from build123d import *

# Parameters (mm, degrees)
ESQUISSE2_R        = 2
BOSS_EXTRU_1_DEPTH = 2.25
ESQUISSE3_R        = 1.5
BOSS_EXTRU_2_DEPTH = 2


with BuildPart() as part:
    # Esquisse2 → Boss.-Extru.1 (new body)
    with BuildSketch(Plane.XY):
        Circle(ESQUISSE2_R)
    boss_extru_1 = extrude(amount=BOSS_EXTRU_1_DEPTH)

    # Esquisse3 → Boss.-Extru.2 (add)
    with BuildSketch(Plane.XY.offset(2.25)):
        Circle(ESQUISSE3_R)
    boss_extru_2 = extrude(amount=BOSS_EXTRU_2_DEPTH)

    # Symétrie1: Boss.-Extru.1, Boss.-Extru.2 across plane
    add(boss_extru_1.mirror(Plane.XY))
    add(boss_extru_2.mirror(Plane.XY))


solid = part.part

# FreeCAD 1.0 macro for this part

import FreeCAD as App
import Part
import Sketcher
Q = App.Units.Quantity

doc = App.newDocument("Part")
params = doc.addObject("Spreadsheet::Sheet", "Params")
for row, (alias, value) in enumerate([
    ("sketch1_diameter", "4 mm"),
    ("pad1_length", "2.25 mm"),
    ("sketch2_diameter", "3 mm"),
    ("pad2_length", "2 mm"),
], start=1):
    params.set(f"A{row}", alias)
    params.set(f"B{row}", "=" + value)
    params.setAlias(f"B{row}", alias)

body = doc.addObject("PartDesign::Body", "Body")

# Sketch on XY plane
sketch1 = doc.addObject("Sketcher::SketchObject", "Sketch")
body.addObject(sketch1)
sketch1.AttachmentSupport = (doc.XY_Plane, [""])
sketch1.MapMode = "FlatFace"
sketch1.addGeometry(Part.Circle(App.Vector(0, 0, 0), App.Vector(0, 0, 1), 2), False)
sketch1.addConstraint(Sketcher.Constraint("Coincident", 0, 3, -1, 1))
sketch1.addConstraint(Sketcher.Constraint("Diameter", 0, Q("4 mm")))
sketch1.setExpression("Constraints[1]", "Params.sketch1_diameter")
pad1 = doc.addObject("PartDesign::Pad", "Pad")
body.addObject(pad1)
pad1.Profile = sketch1
pad1.setExpression("Length", "Params.pad1_length")

# Sketch on XY plane
sketch2 = doc.addObject("Sketcher::SketchObject", "Sketch001")
body.addObject(sketch2)
sketch2.AttachmentSupport = (doc.XY_Plane, [""])
sketch2.MapMode = "FlatFace"
sketch2.AttachmentOffset = App.Placement(App.Vector(0, 0, 2.25), App.Rotation())
sketch2.addGeometry(Part.Circle(App.Vector(0, 0, 0), App.Vector(0, 0, 1), 1.5), False)
sketch2.addConstraint(Sketcher.Constraint("Coincident", 0, 3, -1, 1))
sketch2.addConstraint(Sketcher.Constraint("Diameter", 0, Q("3 mm")))
sketch2.setExpression("Constraints[1]", "Params.sketch2_diameter")
pad2 = doc.addObject("PartDesign::Pad", "Pad001")
body.addObject(pad2)
pad2.Profile = sketch2
pad2.setExpression("Length", "Params.pad2_length")
doc.recompute()

mirrored = doc.addObject("PartDesign::Mirrored", "Mirrored")
body.addObject(mirrored)
mirrored.Originals = [pad1, pad2]
mirrored.MirrorPlane = (doc.XY_Plane, [""])
body.Tip = mirrored

doc.recompute()
